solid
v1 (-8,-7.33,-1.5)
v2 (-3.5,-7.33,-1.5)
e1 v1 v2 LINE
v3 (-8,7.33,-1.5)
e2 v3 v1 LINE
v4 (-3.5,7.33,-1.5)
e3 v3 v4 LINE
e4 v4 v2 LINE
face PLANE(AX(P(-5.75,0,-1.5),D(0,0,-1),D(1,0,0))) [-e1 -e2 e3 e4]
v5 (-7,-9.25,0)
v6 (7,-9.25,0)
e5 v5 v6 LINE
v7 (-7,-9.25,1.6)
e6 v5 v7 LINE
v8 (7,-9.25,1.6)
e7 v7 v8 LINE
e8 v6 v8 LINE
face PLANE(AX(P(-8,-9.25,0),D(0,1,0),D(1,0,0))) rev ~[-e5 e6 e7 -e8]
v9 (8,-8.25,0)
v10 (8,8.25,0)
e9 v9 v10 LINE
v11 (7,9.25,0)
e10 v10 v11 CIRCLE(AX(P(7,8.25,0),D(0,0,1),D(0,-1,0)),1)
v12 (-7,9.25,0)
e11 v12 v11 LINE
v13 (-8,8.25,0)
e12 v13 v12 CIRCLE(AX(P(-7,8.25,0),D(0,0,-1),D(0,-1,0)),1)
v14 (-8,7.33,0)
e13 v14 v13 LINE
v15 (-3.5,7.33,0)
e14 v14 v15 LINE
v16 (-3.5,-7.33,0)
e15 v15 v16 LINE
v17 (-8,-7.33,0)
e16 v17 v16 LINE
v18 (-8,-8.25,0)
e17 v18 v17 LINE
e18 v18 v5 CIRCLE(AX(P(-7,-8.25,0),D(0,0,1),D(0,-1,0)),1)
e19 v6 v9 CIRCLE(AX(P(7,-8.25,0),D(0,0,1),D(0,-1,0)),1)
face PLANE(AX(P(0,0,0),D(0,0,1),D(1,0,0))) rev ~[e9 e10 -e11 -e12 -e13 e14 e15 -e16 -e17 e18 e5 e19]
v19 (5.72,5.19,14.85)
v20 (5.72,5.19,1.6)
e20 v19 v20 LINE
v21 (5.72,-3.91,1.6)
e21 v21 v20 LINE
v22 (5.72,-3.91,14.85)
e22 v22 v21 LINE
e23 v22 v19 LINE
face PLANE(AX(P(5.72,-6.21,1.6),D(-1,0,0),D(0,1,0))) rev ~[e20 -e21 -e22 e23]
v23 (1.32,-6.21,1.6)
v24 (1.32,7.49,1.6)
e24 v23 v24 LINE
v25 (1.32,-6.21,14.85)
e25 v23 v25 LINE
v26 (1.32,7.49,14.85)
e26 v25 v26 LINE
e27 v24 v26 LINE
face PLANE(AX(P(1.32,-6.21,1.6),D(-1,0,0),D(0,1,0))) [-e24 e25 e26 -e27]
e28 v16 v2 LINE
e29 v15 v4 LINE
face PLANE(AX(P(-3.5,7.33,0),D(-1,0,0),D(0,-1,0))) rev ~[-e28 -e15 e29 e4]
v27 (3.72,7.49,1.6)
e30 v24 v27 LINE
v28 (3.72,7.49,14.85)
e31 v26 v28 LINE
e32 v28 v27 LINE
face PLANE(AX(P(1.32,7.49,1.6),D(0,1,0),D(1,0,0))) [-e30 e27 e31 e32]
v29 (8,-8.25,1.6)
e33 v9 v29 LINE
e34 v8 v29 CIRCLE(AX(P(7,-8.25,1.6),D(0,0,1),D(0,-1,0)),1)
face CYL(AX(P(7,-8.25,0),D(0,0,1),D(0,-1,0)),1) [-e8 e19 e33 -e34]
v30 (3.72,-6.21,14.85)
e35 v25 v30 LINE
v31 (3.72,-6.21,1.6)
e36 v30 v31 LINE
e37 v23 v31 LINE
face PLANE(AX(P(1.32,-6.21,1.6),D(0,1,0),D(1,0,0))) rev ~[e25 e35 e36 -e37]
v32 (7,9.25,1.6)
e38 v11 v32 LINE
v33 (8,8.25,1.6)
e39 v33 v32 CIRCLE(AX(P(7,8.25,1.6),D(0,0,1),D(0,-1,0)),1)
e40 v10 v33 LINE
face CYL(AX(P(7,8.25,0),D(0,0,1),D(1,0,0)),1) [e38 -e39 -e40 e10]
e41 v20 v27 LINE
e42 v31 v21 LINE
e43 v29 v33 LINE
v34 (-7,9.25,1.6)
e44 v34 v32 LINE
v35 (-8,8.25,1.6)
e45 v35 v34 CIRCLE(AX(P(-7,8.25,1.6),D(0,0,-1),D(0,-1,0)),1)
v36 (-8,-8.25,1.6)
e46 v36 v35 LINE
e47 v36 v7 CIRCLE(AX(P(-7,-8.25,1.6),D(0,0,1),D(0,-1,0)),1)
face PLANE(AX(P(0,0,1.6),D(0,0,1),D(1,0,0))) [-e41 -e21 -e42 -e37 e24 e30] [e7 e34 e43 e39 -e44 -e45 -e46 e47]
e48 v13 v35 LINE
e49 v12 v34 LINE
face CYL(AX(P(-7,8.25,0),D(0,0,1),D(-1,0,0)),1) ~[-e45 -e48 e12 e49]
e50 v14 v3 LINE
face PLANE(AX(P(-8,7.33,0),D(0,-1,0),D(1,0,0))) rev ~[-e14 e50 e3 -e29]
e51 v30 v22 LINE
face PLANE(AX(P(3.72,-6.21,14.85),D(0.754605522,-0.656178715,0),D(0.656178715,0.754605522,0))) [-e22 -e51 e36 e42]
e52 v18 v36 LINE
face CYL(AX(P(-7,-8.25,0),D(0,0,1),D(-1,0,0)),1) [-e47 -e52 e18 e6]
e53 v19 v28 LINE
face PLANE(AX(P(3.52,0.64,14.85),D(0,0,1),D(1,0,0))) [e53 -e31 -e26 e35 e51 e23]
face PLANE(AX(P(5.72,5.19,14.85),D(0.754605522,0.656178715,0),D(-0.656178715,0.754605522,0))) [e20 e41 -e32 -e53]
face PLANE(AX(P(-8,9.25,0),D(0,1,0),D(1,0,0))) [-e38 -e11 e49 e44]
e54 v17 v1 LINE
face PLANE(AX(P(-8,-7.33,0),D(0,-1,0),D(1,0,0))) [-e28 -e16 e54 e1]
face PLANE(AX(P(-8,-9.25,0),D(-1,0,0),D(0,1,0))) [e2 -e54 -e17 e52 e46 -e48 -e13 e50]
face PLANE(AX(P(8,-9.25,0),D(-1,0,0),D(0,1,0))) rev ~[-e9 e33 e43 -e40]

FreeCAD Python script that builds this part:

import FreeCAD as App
import Part
import Sketcher


def edges_at(feature, points):
    """Names of the edges that pass closest to the given points."""
    edges = feature.Shape.Edges
    near = lambda p: min(range(len(edges)), key=lambda i: edges[i].distToShape(Part.Vertex(*p))[0])
    return sorted({f"Edge{near(p) + 1}" for p in points})

doc = App.newDocument("Part")
params = doc.addObject("Spreadsheet::Sheet", "Params")
for row, (alias, value) in enumerate([
    ("sketch1_width", "16 mm"),
    ("sketch1_height", "18.5 mm"),
    ("pad1_length", "1.6 mm"),
    ("fillet_radius", "1 mm"),
    ("sketch2_width", "4.4 mm"),
    ("sketch2_height", "13.7 mm"),
    ("pad2_length", "13.25 mm"),
    ("sketch3_width", "2 mm"),
    ("sketch3_height", "2.3 mm"),
    ("pocket1_length", "13.25 mm"),
    ("sketch4_width", "4.5 mm"),
    ("sketch4_height", "14.66 mm"),
    ("pad3_length", "1.5 mm"),
], start=1):
    params.set(f"A{row}", alias)
    params.set(f"B{row}", "=" + value)
    params.setAlias(f"B{row}", alias)

body = doc.addObject("PartDesign::Body", "Body")

sketch1 = doc.addObject("Sketcher::SketchObject", "Sketch")
body.addObject(sketch1)
sketch1.AttachmentSupport = (doc.XY_Plane, [""])
sketch1.MapMode = "FlatFace"
sketch1.addGeometry(Part.LineSegment(App.Vector(-8, 9, 0), App.Vector(-8, -9, 0)), False)
sketch1.addGeometry(Part.LineSegment(App.Vector(-8, -9, 0), App.Vector(8, -9, 0)), False)
sketch1.addGeometry(Part.LineSegment(App.Vector(8, -9, 0), App.Vector(8, 9, 0)), False)
sketch1.addGeometry(Part.LineSegment(App.Vector(8, 9, 0), App.Vector(-8, 9, 0)), False)
sketch1.addConstraint(Sketcher.Constraint("Coincident", 0, 2, 1, 1))
sketch1.addConstraint(Sketcher.Constraint("Coincident", 1, 2, 2, 1))
sketch1.addConstraint(Sketcher.Constraint("Coincident", 2, 2, 3, 1))
sketch1.addConstraint(Sketcher.Constraint("Coincident", 3, 2, 0, 1))
sketch1.addConstraint(Sketcher.Constraint("Vertical", 0))
sketch1.addConstraint(Sketcher.Constraint("Horizontal", 1))
sketch1.addConstraint(Sketcher.Constraint("Vertical", 2))
sketch1.addConstraint(Sketcher.Constraint("Horizontal", 3))
sketch1.addConstraint(Sketcher.Constraint("Symmetric", 0, 2, 2, 2, -1, 1))
sketch1.addConstraint(Sketcher.Constraint("DistanceX", 1, 1, 1, 2, 16.0))
sketch1.addConstraint(Sketcher.Constraint("DistanceY", 0, 2, 0, 1, 18.5))
sketch1.setExpression("Constraints[9]", "Params.sketch1_width")
sketch1.setExpression("Constraints[10]", "Params.sketch1_height")
pad1 = doc.addObject("PartDesign::Pad", "Pad")
body.addObject(pad1)
pad1.Profile = sketch1
pad1.setExpression("Length", "Params.pad1_length")
doc.recompute()

fillet = doc.addObject("PartDesign::Fillet", "Fillet")
body.addObject(fillet)
fillet.Base = (pad1, edges_at(pad1, [
    (8, -9.25, 0.8),
    (-8, -9.25, 0.8),
    (-8, 9.25, 0.8),
    (8, 9.25, 0.8),
]))
fillet.setExpression("Radius", "Params.fillet_radius")

sketch2 = doc.addObject("Sketcher::SketchObject", "Sketch001")
body.addObject(sketch2)
sketch2.AttachmentSupport = (doc.XY_Plane, [""])
sketch2.MapMode = "FlatFace"
sketch2.AttachmentOffset = App.Placement(App.Vector(0, 0, 1.6), App.Rotation())
sketch2.addGeometry(Part.LineSegment(App.Vector(1.3, 7.5, 0), App.Vector(1.3, -6.2, 0)), False)
sketch2.addGeometry(Part.LineSegment(App.Vector(1.3, -6.2, 0), App.Vector(5.7, -6.2, 0)), False)
sketch2.addGeometry(Part.LineSegment(App.Vector(5.7, -6.2, 0), App.Vector(5.7, 7.5, 0)), False)
sketch2.addGeometry(Part.LineSegment(App.Vector(5.7, 7.5, 0), App.Vector(1.3, 7.5, 0)), False)
sketch2.addConstraint(Sketcher.Constraint("Coincident", 0, 2, 1, 1))
sketch2.addConstraint(Sketcher.Constraint("Coincident", 1, 2, 2, 1))
sketch2.addConstraint(Sketcher.Constraint("Coincident", 2, 2, 3, 1))
sketch2.addConstraint(Sketcher.Constraint("Coincident", 3, 2, 0, 1))
sketch2.addConstraint(Sketcher.Constraint("Vertical", 0))
sketch2.addConstraint(Sketcher.Constraint("Horizontal", 1))
sketch2.addConstraint(Sketcher.Constraint("Vertical", 2))
sketch2.addConstraint(Sketcher.Constraint("Horizontal", 3))
sketch2.addConstraint(Sketcher.Constraint("DistanceX", 1, 1, 1, 2, 4.4))
sketch2.addConstraint(Sketcher.Constraint("DistanceY", 0, 2, 0, 1, 13.7))
sketch2.addConstraint(Sketcher.Constraint("DistanceX", -1, 1, 0, 2, 1.32))
sketch2.addConstraint(Sketcher.Constraint("DistanceY", 0, 2, -1, 1, 6.21))
sketch2.setExpression("Constraints[8]", "Params.sketch2_width")
sketch2.setExpression("Constraints[9]", "Params.sketch2_height")
pad2 = doc.addObject("PartDesign::Pad", "Pad001")
body.addObject(pad2)
pad2.Profile = sketch2
pad2.setExpression("Length", "Params.pad2_length")

sketch3 = doc.addObject("Sketcher::SketchObject", "Sketch002")
body.addObject(sketch3)
sketch3.AttachmentSupport = (doc.XY_Plane, [""])
sketch3.MapMode = "FlatFace"
sketch3.AttachmentOffset = App.Placement(App.Vector(0, 0, 14.85), App.Rotation())
sketch3.addGeometry(Part.LineSegment(App.Vector(5.7, 5.2, 0), App.Vector(5.7, 7.5, 0)), False)
sketch3.addGeometry(Part.LineSegment(App.Vector(5.7, 7.5, 0), App.Vector(3.7, 7.5, 0)), False)
sketch3.addGeometry(Part.LineSegment(App.Vector(3.7, 7.5, 0), App.Vector(5.7, 5.2, 0)), False)
sketch3.addGeometry(Part.LineSegment(App.Vector(5.7, -6.2, 0), App.Vector(5.7, -3.9, 0)), False)
sketch3.addGeometry(Part.LineSegment(App.Vector(5.7, -3.9, 0), App.Vector(3.7, -6.2, 0)), False)
sketch3.addGeometry(Part.LineSegment(App.Vector(3.7, -6.2, 0), App.Vector(5.7, -6.2, 0)), False)
sketch3.addConstraint(Sketcher.Constraint("Coincident", 0, 2, 1, 1))
sketch3.addConstraint(Sketcher.Constraint("Coincident", 1, 2, 2, 1))
sketch3.addConstraint(Sketcher.Constraint("Coincident", 2, 2, 0, 1))
sketch3.addConstraint(Sketcher.Constraint("Coincident", 3, 2, 4, 1))
sketch3.addConstraint(Sketcher.Constraint("Coincident", 4, 2, 5, 1))
sketch3.addConstraint(Sketcher.Constraint("Coincident", 5, 2, 3, 1))
sketch3.addConstraint(Sketcher.Constraint("Vertical", 0))
sketch3.addConstraint(Sketcher.Constraint("Horizontal", 1))
sketch3.addConstraint(Sketcher.Constraint("Vertical", 3))
sketch3.addConstraint(Sketcher.Constraint("Horizontal", 5))
sketch3.addConstraint(Sketcher.Constraint("Vertical", 2, 2, 3, 2))
sketch3.addConstraint(Sketcher.Constraint("Vertical", 1, 2, 4, 2))
sketch3.addConstraint(Sketcher.Constraint("Equal", 0, 3))
sketch3.addConstraint(Sketcher.Constraint("DistanceX", 1, 2, 1, 1, 2.0))
sketch3.addConstraint(Sketcher.Constraint("DistanceY", 0, 1, 0, 2, 2.3))
sketch3.addConstraint(Sketcher.Constraint("DistanceY", 3, 2, 2, 2, 9.1))
sketch3.addConstraint(Sketcher.Constraint("DistanceX", -1, 1, 0, 2, 5.72))
sketch3.addConstraint(Sketcher.Constraint("DistanceY", -1, 1, 0, 2, 7.49))
sketch3.setExpression("Constraints[13]", "Params.sketch3_width")
sketch3.setExpression("Constraints[14]", "Params.sketch3_height")
pocket1 = doc.addObject("PartDesign::Pocket", "Pocket")
body.addObject(pocket1)
pocket1.Profile = sketch3
pocket1.setExpression("Length", "Params.pocket1_length")

sketch4 = doc.addObject("Sketcher::SketchObject", "Sketch003")
body.addObject(sketch4)
sketch4.AttachmentSupport = (doc.XY_Plane, [""])
sketch4.MapMode = "FlatFace"
sketch4.addGeometry(Part.LineSegment(App.Vector(-8, -7.3, 0), App.Vector(-8, 7.3, 0)), False)
sketch4.addGeometry(Part.LineSegment(App.Vector(-8, 7.3, 0), App.Vector(-3.5, 7.3, 0)), False)
sketch4.addGeometry(Part.LineSegment(App.Vector(-3.5, 7.3, 0), App.Vector(-3.5, -7.3, 0)), False)
sketch4.addGeometry(Part.LineSegment(App.Vector(-3.5, -7.3, 0), App.Vector(-8, -7.3, 0)), False)
sketch4.addConstraint(Sketcher.Constraint("Coincident", 0, 2, 1, 1))
sketch4.addConstraint(Sketcher.Constraint("Coincident", 1, 2, 2, 1))
sketch4.addConstraint(Sketcher.Constraint("Coincident", 2, 2, 3, 1))
sketch4.addConstraint(Sketcher.Constraint("Coincident", 3, 2, 0, 1))
sketch4.addConstraint(Sketcher.Constraint("Vertical", 0))
sketch4.addConstraint(Sketcher.Constraint("Horizontal", 1))
sketch4.addConstraint(Sketcher.Constraint("Vertical", 2))
sketch4.addConstraint(Sketcher.Constraint("Horizontal", 3))
sketch4.addConstraint(Sketcher.Constraint("DistanceX", 1, 1, 1, 2, 4.5))
sketch4.addConstraint(Sketcher.Constraint("DistanceX", 0, 2, -1, 1, 8.0))
sketch4.addConstraint(Sketcher.Constraint("DistanceY", 0, 1, 0, 2, 14.66))
sketch4.addConstraint(Sketcher.Constraint("DistanceY", -1, 1, 0, 2, 7.33))
sketch4.setExpression("Constraints[8]", "Params.sketch4_width")
sketch4.setExpression("Constraints[10]", "Params.sketch4_height")
pad3 = doc.addObject("PartDesign::Pad", "Pad002")
body.addObject(pad3)
pad3.Profile = sketch4
pad3.setExpression("Length", "Params.pad3_length")
pad3.Reversed = True

doc.recompute()
